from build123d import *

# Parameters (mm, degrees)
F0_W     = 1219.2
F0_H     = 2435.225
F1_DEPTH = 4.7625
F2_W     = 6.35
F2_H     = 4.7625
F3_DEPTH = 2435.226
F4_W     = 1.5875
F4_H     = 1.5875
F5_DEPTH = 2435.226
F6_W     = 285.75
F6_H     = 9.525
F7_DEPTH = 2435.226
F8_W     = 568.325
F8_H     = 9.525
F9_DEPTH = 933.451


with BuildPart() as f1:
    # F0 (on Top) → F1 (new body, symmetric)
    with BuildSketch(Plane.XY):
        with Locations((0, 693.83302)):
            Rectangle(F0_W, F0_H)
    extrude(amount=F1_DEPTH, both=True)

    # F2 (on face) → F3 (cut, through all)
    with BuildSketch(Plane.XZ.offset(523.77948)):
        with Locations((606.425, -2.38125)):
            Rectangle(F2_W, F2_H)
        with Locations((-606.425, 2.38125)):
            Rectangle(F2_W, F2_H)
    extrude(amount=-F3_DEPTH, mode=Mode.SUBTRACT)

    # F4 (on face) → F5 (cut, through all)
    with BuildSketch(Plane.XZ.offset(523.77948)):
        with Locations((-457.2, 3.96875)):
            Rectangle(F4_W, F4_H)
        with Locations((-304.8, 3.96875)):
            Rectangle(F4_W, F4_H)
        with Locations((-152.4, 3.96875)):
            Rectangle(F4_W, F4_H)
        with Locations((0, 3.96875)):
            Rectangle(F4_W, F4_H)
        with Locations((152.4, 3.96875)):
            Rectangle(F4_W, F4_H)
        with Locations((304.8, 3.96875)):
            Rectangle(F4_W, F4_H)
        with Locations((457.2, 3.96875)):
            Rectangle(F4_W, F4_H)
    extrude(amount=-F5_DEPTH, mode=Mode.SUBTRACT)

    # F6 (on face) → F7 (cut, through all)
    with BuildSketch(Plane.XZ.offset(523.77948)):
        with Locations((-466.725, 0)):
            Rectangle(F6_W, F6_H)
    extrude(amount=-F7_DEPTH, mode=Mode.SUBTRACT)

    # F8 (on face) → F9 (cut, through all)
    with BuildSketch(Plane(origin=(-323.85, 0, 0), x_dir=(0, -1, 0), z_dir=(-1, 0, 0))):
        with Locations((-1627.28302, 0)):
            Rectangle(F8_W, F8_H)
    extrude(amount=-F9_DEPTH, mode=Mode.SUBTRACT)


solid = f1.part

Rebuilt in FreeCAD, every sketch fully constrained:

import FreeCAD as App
import Part
import Sketcher
from FreeCAD import Vector
Q = App.Units.Quantity


def add_polygon(sketch, points):
    """Adds a closed chain of lines whose ends are joined by coincident constraints."""
    first, n = sketch.GeometryCount, len(points)
    for a, b in zip(points, points[1:] + points[:1]):
        sketch.addGeometry(Part.LineSegment(App.Vector(*a, 0), App.Vector(*b, 0)), False)
    for i in range(n):
        sketch.addConstraint(Sketcher.Constraint("Coincident", first + i, 2, first + (i + 1) % n, 1))

doc = App.newDocument("Part")
params = doc.addObject("Spreadsheet::Sheet", "Params")
for row, (alias, value) in enumerate([
    ("sketch1_width", "48 in"),
    ("sketch1_height", "95.875 in"),
    ("pad1_length", "0.375 in"),
    ("sketch2_width", "0.25 in"),
    ("sketch2_height", "0.1875 in"),
    ("sketch3_width", "0.0625 in"),
    ("sketch4_width", "11.25 in"),
    ("sketch4_height", "0.375 in"),
    ("sketch5_width", "22.375 in"),
    ("sketch5_height", "0.375 in"),
], start=1):
    params.set(f"A{row}", alias)
    params.set(f"B{row}", "=" + value)
    params.setAlias(f"B{row}", alias)

body = doc.addObject("PartDesign::Body", "Body")

# Sketch on XY plane
sketch1 = body.newObject("Sketcher::SketchObject", "Sketch")
sketch1.AttachmentSupport = (doc.getObject("XY_Plane"), [""])
sketch1.MapMode = "FlatFace"
add_polygon(sketch1, [(-610, 1911), (-610, -524), (610, -524), (610, 1911)])  # lines 0-3
sketch1.addConstraint(Sketcher.Constraint("Vertical", 0))
sketch1.addConstraint(Sketcher.Constraint("Horizontal", 1))
sketch1.addConstraint(Sketcher.Constraint("Vertical", 2))
sketch1.addConstraint(Sketcher.Constraint("Horizontal", 3))
sketch1.addConstraint(Sketcher.Constraint("DistanceX", 1, 1, 1, 2, Q("48 in")))
sketch1.addConstraint(Sketcher.Constraint("DistanceX", 0, 2, -1, 1, Q("24 in")))
sketch1.addConstraint(Sketcher.Constraint("DistanceY", 0, 2, 0, 1, Q("95.875 in")))
sketch1.addConstraint(Sketcher.Constraint("DistanceY", 0, 2, -1, 1, Q("523.77948 mm")))
sketch1.setExpression("Constraints[8]", "Params.sketch1_width")
sketch1.setExpression("Constraints[10]", "Params.sketch1_height")
pad1 = body.newObject("PartDesign::Pad", "Pad")
pad1.Profile = sketch1
pad1.setExpression("Length", "Params.pad1_length")
pad1.Midplane = True

# Sketch on XZ plane
sketch2 = body.newObject("Sketcher::SketchObject", "Sketch001")
sketch2.AttachmentSupport = (doc.getObject("XZ_Plane"), [""])
sketch2.MapMode = "FlatFace"
sketch2.AttachmentOffset = App.Placement(Vector(0, 0, 523.77948), App.Rotation())
add_polygon(sketch2, [(603.2, 0), (603.2, -4.8), (609.6, -4.8), (609.6, 0)])  # lines 0-3
add_polygon(sketch2, [(-609.6, 4.8), (-609.6, 0), (-603.2, 0), (-603.2, 4.8)])  # lines 4-7
sketch2.addConstraint(Sketcher.Constraint("Vertical", 0))
sketch2.addConstraint(Sketcher.Constraint("Horizontal", 1))
sketch2.addConstraint(Sketcher.Constraint("Vertical", 2))
sketch2.addConstraint(Sketcher.Constraint("Horizontal", 3))
sketch2.addConstraint(Sketcher.Constraint("Vertical", 4))
sketch2.addConstraint(Sketcher.Constraint("Horizontal", 5))
sketch2.addConstraint(Sketcher.Constraint("Vertical", 6))
sketch2.addConstraint(Sketcher.Constraint("Horizontal", 7))
sketch2.addConstraint(Sketcher.Constraint("Symmetric", 2, 2, 4, 2, -1, 1))
sketch2.addConstraint(Sketcher.Constraint("Symmetric", 0, 2, 6, 2, -1, 1))
sketch2.addConstraint(Sketcher.Constraint("PointOnObject", 2, 2, -1))
sketch2.addConstraint(Sketcher.Constraint("DistanceX", -1, 1, 1, 2, Q("24 in")))
sketch2.addConstraint(Sketcher.Constraint("DistanceX", 1, 1, 1, 2, Q("0.25 in")))
sketch2.addConstraint(Sketcher.Constraint("DistanceY", 0, 2, 0, 1, Q("0.1875 in")))
sketch2.setExpression("Constraints[20]", "Params.sketch2_width")
sketch2.setExpression("Constraints[21]", "Params.sketch2_height")
pocket1 = body.newObject("PartDesign::Pocket", "Pocket")
pocket1.Profile = sketch2
pocket1.Type = "ThroughAll"

# Sketch on XZ plane
sketch3 = body.newObject("Sketcher::SketchObject", "Sketch002")
sketch3.AttachmentSupport = (doc.getObject("XZ_Plane"), [""])
sketch3.MapMode = "FlatFace"
sketch3.AttachmentOffset = App.Placement(Vector(0, 0, 523.77948), App.Rotation())
add_polygon(sketch3, [(-458, 4.8), (-458, 3.2), (-456.4, 3.2), (-456.4, 4.8)])  # lines 0-3
add_polygon(sketch3, [(-305.6, 4.8), (-305.6, 3.2), (-304, 3.2), (-304, 4.8)])  # lines 4-7
add_polygon(sketch3, [(-153.2, 4.8), (-153.2, 3.2), (-151.6, 3.2), (-151.6, 4.8)])  # lines 8-11
add_polygon(sketch3, [(-0.8, 4.8), (-0.8, 3.2), (0.8, 3.2), (0.8, 4.8)])  # lines 12-15
add_polygon(sketch3, [(151.6, 4.8), (151.6, 3.2), (153.2, 3.2), (153.2, 4.8)])  # lines 16-19
add_polygon(sketch3, [(304, 4.8), (304, 3.2), (305.6, 3.2), (305.6, 4.8)])  # lines 20-23
add_polygon(sketch3, [(456.4, 4.8), (456.4, 3.2), (458, 3.2), (458, 4.8)])  # lines 24-27
sketch3.addConstraint(Sketcher.Constraint("Vertical", 0))
sketch3.addConstraint(Sketcher.Constraint("Horizontal", 1))
sketch3.addConstraint(Sketcher.Constraint("Vertical", 2))
sketch3.addConstraint(Sketcher.Constraint("Horizontal", 3))
sketch3.addConstraint(Sketcher.Constraint("Vertical", 4))
sketch3.addConstraint(Sketcher.Constraint("Horizontal", 5))
sketch3.addConstraint(Sketcher.Constraint("Vertical", 6))
sketch3.addConstraint(Sketcher.Constraint("Horizontal", 7))
sketch3.addConstraint(Sketcher.Constraint("Vertical", 8))
sketch3.addConstraint(Sketcher.Constraint("Horizontal", 9))
sketch3.addConstraint(Sketcher.Constraint("Vertical", 10))
sketch3.addConstraint(Sketcher.Constraint("Horizontal", 11))
sketch3.addConstraint(Sketcher.Constraint("Vertical", 12))
sketch3.addConstraint(Sketcher.Constraint("Horizontal", 13))
sketch3.addConstraint(Sketcher.Constraint("Vertical", 14))
sketch3.addConstraint(Sketcher.Constraint("Horizontal", 15))
sketch3.addConstraint(Sketcher.Constraint("Vertical", 16))
sketch3.addConstraint(Sketcher.Constraint("Horizontal", 17))
sketch3.addConstraint(Sketcher.Constraint("Vertical", 18))
sketch3.addConstraint(Sketcher.Constraint("Horizontal", 19))
sketch3.addConstraint(Sketcher.Constraint("Vertical", 20))
sketch3.addConstraint(Sketcher.Constraint("Horizontal", 21))
sketch3.addConstraint(Sketcher.Constraint("Vertical", 22))
sketch3.addConstraint(Sketcher.Constraint("Horizontal", 23))
sketch3.addConstraint(Sketcher.Constraint("Vertical", 24))
sketch3.addConstraint(Sketcher.Constraint("Horizontal", 25))
sketch3.addConstraint(Sketcher.Constraint("Vertical", 26))
sketch3.addConstraint(Sketcher.Constraint("Horizontal", 27))
sketch3.addConstraint(Sketcher.Constraint("Symmetric", 9, 2, 16, 2, -2))
sketch3.addConstraint(Sketcher.Constraint("Symmetric", 11, 2, 18, 2, -2))
sketch3.addConstraint(Sketcher.Constraint("Symmetric", 5, 2, 20, 2, -2))
sketch3.addConstraint(Sketcher.Constraint("Symmetric", 7, 2, 22, 2, -2))
sketch3.addConstraint(Sketcher.Constraint("Symmetric", 1, 2, 24, 2, -2))
sketch3.addConstraint(Sketcher.Constraint("Symmetric", 3, 2, 26, 2, -2))
sketch3.addConstraint(Sketcher.Constraint("Horizontal", 1, 2, 4, 2))
sketch3.addConstraint(Sketcher.Constraint("Horizontal", 3, 2, 6, 2))
sketch3.addConstraint(Sketcher.Constraint("Horizontal", 5, 2, 8, 2))
sketch3.addConstraint(Sketcher.Constraint("Horizontal", 7, 2, 10, 2))
sketch3.addConstraint(Sketcher.Constraint("Horizontal", 9, 2, 12, 2))
sketch3.addConstraint(Sketcher.Constraint("Horizontal", 11, 2, 14, 2))
sketch3.addConstraint(Sketcher.Constraint("Equal", 3, 5))
sketch3.addConstraint(Sketcher.Constraint("Equal", 7, 9))
sketch3.addConstraint(Sketcher.Constraint("Equal", 11, 13))
sketch3.addConstraint(Sketcher.Constraint("Equal", 27, 0))
sketch3.addConstraint(Sketcher.Constraint("DistanceX", 0, 2, 4, 2, Q("6 in")))
sketch3.addConstraint(Sketcher.Constraint("DistanceX", 4, 2, 8, 2, Q("6 in")))
sketch3.addConstraint(Sketcher.Constraint("DistanceX", 8, 2, 12, 2, Q("6 in")))
sketch3.addConstraint(Sketcher.Constraint("DistanceX", 12, 2, 16, 2, Q("6 in")))
sketch3.addConstraint(Sketcher.Constraint("DistanceX", 1, 1, 1, 2, Q("0.0625 in")))
sketch3.addConstraint(Sketcher.Constraint("DistanceY", -1, 1, 0, 2, Q("0.125 in")))
sketch3.setExpression("Constraints[76]", "Params.sketch3_width")
pocket2 = body.newObject("PartDesign::Pocket", "Pocket001")
pocket2.Profile = sketch3
pocket2.Type = "ThroughAll"

# Sketch on XZ plane
sketch4 = body.newObject("Sketcher::SketchObject", "Sketch003")
sketch4.AttachmentSupport = (doc.getObject("XZ_Plane"), [""])
sketch4.MapMode = "FlatFace"
sketch4.AttachmentOffset = App.Placement(Vector(0, 0, 523.77948), App.Rotation())
add_polygon(sketch4, [(-610, 5), (-610, -5), (-324, -5), (-324, 5)])  # lines 0-3
sketch4.addConstraint(Sketcher.Constraint("Vertical", 0))
sketch4.addConstraint(Sketcher.Constraint("Horizontal", 1))
sketch4.addConstraint(Sketcher.Constraint("Vertical", 2))
sketch4.addConstraint(Sketcher.Constraint("Horizontal", 3))
sketch4.addConstraint(Sketcher.Constraint("DistanceX", 0, 2, -1, 1, Q("24 in")))
sketch4.addConstraint(Sketcher.Constraint("DistanceX", 1, 1, 1, 2, Q("11.25 in")))
sketch4.addConstraint(Sketcher.Constraint("DistanceY", 0, 2, 0, 1, Q("0.375 in")))
sketch4.addConstraint(Sketcher.Constraint("DistanceY", 0, 2, -1, 1, Q("0.1875 in")))
sketch4.setExpression("Constraints[9]", "Params.sketch4_width")
sketch4.setExpression("Constraints[10]", "Params.sketch4_height")
pocket3 = body.newObject("PartDesign::Pocket", "Pocket002")
pocket3.Profile = sketch4
pocket3.Type = "ThroughAll"

# Sketch on YZ plane
sketch5 = body.newObject("Sketcher::SketchObject", "Sketch004")
sketch5.AttachmentSupport = (doc.getObject("YZ_Plane"), [""])
sketch5.MapMode = "FlatFace"
sketch5.AttachmentOffset = App.Placement(Vector(0, 0, -12.75 * 25.4), App.Rotation())
add_polygon(sketch5, [(1911, 5), (1911, -5), (1343, -5), (1343, 5)])  # lines 0-3
sketch5.addConstraint(Sketcher.Constraint("Vertical", 0))
sketch5.addConstraint(Sketcher.Constraint("Horizontal", 1))
sketch5.addConstraint(Sketcher.Constraint("Vertical", 2))
sketch5.addConstraint(Sketcher.Constraint("Horizontal", 3))
sketch5.addConstraint(Sketcher.Constraint("DistanceX", 1, 2, 1, 1, Q("22.375 in")))
sketch5.addConstraint(Sketcher.Constraint("DistanceY", 0, 2, 0, 1, Q("0.375 in")))
sketch5.addConstraint(Sketcher.Constraint("DistanceY", 0, 2, -1, 1, Q("0.1875 in")))
sketch5.addConstraint(Sketcher.Constraint("DistanceX", -1, 1, 0, 2, Q("1911.44552 mm")))
sketch5.setExpression("Constraints[8]", "Params.sketch5_width")
sketch5.setExpression("Constraints[9]", "Params.sketch5_height")
pocket4 = body.newObject("PartDesign::Pocket", "Pocket003")
pocket4.Profile = sketch5
pocket4.Type = "ThroughAll"
pocket4.Reversed = True

doc.recompute()
